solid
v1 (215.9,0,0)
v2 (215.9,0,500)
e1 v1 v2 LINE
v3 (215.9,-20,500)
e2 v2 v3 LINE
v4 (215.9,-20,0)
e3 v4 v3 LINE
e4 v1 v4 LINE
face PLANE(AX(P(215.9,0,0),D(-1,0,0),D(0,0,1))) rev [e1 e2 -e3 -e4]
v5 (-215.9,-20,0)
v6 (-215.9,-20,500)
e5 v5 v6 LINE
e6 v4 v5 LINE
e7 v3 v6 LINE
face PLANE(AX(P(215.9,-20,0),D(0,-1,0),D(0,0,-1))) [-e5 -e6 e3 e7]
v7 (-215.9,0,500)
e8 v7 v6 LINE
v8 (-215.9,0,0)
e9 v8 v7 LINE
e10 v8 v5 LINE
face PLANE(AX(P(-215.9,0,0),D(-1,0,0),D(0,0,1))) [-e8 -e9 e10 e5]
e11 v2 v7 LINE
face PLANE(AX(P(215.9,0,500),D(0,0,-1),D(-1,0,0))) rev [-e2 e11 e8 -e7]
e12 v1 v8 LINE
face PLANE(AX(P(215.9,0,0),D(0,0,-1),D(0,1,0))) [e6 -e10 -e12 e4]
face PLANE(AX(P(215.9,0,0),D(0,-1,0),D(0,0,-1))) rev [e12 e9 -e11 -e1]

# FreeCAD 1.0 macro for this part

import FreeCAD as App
import Part
import Sketcher
Q = App.Units.Quantity


def add_polygon(sketch, points):
    """Adds a closed chain of lines whose ends are joined by coincident constraints."""
    first, n = sketch.GeometryCount, len(points)
    for a, b in zip(points, points[1:] + points[:1]):
        sketch.addGeometry(Part.LineSegment(App.Vector(*a, 0), App.Vector(*b, 0)), False)
    for i in range(n):
        sketch.addConstraint(Sketcher.Constraint("Coincident", first + i, 2, first + (i + 1) % n, 1))

doc = App.newDocument("Part")
params = doc.addObject("Spreadsheet::Sheet", "Params")
for row, (alias, value) in enumerate([
    ("sketch1_width", "20 mm"),
    ("sketch1_height", "500 mm"),
    ("pad1_length", "431.8 mm"),
], start=1):
    params.set(f"A{row}", alias)
    params.set(f"B{row}", "=" + value)
    params.setAlias(f"B{row}", alias)

body = doc.addObject("PartDesign::Body", "Body")

sketch1 = body.newObject("Sketcher::SketchObject", "Sketch")
sketch1.AttachmentSupport = (doc.getObject("YZ_Plane"), [""])
sketch1.MapMode = "FlatFace"
add_polygon(sketch1, [(0, 500), (-20, 500), (-20, 0), (0, 0)])
sketch1.addConstraint([
    Sketcher.Constraint("Horizontal", 0),
    Sketcher.Constraint("Vertical", 1),
    Sketcher.Constraint("Horizontal", 2),
    Sketcher.Constraint("Vertical", 3),
    Sketcher.Constraint("Coincident", 2, 2, -1, 1),
    Sketcher.Constraint("DistanceX", 0, 2, 0, 1, Q("20 mm")),
    Sketcher.Constraint("DistanceY", 1, 2, 1, 1, Q("500 mm")),
])
sketch1.setExpression("Constraints[9]", "Params.sketch1_width")
sketch1.setExpression("Constraints[10]", "Params.sketch1_height")
pad1 = body.newObject("PartDesign::Pad", "Pad")
pad1.Profile = sketch1
pad1.setExpression("Length", "Params.pad1_length")
pad1.Midplane = True

doc.recompute()
